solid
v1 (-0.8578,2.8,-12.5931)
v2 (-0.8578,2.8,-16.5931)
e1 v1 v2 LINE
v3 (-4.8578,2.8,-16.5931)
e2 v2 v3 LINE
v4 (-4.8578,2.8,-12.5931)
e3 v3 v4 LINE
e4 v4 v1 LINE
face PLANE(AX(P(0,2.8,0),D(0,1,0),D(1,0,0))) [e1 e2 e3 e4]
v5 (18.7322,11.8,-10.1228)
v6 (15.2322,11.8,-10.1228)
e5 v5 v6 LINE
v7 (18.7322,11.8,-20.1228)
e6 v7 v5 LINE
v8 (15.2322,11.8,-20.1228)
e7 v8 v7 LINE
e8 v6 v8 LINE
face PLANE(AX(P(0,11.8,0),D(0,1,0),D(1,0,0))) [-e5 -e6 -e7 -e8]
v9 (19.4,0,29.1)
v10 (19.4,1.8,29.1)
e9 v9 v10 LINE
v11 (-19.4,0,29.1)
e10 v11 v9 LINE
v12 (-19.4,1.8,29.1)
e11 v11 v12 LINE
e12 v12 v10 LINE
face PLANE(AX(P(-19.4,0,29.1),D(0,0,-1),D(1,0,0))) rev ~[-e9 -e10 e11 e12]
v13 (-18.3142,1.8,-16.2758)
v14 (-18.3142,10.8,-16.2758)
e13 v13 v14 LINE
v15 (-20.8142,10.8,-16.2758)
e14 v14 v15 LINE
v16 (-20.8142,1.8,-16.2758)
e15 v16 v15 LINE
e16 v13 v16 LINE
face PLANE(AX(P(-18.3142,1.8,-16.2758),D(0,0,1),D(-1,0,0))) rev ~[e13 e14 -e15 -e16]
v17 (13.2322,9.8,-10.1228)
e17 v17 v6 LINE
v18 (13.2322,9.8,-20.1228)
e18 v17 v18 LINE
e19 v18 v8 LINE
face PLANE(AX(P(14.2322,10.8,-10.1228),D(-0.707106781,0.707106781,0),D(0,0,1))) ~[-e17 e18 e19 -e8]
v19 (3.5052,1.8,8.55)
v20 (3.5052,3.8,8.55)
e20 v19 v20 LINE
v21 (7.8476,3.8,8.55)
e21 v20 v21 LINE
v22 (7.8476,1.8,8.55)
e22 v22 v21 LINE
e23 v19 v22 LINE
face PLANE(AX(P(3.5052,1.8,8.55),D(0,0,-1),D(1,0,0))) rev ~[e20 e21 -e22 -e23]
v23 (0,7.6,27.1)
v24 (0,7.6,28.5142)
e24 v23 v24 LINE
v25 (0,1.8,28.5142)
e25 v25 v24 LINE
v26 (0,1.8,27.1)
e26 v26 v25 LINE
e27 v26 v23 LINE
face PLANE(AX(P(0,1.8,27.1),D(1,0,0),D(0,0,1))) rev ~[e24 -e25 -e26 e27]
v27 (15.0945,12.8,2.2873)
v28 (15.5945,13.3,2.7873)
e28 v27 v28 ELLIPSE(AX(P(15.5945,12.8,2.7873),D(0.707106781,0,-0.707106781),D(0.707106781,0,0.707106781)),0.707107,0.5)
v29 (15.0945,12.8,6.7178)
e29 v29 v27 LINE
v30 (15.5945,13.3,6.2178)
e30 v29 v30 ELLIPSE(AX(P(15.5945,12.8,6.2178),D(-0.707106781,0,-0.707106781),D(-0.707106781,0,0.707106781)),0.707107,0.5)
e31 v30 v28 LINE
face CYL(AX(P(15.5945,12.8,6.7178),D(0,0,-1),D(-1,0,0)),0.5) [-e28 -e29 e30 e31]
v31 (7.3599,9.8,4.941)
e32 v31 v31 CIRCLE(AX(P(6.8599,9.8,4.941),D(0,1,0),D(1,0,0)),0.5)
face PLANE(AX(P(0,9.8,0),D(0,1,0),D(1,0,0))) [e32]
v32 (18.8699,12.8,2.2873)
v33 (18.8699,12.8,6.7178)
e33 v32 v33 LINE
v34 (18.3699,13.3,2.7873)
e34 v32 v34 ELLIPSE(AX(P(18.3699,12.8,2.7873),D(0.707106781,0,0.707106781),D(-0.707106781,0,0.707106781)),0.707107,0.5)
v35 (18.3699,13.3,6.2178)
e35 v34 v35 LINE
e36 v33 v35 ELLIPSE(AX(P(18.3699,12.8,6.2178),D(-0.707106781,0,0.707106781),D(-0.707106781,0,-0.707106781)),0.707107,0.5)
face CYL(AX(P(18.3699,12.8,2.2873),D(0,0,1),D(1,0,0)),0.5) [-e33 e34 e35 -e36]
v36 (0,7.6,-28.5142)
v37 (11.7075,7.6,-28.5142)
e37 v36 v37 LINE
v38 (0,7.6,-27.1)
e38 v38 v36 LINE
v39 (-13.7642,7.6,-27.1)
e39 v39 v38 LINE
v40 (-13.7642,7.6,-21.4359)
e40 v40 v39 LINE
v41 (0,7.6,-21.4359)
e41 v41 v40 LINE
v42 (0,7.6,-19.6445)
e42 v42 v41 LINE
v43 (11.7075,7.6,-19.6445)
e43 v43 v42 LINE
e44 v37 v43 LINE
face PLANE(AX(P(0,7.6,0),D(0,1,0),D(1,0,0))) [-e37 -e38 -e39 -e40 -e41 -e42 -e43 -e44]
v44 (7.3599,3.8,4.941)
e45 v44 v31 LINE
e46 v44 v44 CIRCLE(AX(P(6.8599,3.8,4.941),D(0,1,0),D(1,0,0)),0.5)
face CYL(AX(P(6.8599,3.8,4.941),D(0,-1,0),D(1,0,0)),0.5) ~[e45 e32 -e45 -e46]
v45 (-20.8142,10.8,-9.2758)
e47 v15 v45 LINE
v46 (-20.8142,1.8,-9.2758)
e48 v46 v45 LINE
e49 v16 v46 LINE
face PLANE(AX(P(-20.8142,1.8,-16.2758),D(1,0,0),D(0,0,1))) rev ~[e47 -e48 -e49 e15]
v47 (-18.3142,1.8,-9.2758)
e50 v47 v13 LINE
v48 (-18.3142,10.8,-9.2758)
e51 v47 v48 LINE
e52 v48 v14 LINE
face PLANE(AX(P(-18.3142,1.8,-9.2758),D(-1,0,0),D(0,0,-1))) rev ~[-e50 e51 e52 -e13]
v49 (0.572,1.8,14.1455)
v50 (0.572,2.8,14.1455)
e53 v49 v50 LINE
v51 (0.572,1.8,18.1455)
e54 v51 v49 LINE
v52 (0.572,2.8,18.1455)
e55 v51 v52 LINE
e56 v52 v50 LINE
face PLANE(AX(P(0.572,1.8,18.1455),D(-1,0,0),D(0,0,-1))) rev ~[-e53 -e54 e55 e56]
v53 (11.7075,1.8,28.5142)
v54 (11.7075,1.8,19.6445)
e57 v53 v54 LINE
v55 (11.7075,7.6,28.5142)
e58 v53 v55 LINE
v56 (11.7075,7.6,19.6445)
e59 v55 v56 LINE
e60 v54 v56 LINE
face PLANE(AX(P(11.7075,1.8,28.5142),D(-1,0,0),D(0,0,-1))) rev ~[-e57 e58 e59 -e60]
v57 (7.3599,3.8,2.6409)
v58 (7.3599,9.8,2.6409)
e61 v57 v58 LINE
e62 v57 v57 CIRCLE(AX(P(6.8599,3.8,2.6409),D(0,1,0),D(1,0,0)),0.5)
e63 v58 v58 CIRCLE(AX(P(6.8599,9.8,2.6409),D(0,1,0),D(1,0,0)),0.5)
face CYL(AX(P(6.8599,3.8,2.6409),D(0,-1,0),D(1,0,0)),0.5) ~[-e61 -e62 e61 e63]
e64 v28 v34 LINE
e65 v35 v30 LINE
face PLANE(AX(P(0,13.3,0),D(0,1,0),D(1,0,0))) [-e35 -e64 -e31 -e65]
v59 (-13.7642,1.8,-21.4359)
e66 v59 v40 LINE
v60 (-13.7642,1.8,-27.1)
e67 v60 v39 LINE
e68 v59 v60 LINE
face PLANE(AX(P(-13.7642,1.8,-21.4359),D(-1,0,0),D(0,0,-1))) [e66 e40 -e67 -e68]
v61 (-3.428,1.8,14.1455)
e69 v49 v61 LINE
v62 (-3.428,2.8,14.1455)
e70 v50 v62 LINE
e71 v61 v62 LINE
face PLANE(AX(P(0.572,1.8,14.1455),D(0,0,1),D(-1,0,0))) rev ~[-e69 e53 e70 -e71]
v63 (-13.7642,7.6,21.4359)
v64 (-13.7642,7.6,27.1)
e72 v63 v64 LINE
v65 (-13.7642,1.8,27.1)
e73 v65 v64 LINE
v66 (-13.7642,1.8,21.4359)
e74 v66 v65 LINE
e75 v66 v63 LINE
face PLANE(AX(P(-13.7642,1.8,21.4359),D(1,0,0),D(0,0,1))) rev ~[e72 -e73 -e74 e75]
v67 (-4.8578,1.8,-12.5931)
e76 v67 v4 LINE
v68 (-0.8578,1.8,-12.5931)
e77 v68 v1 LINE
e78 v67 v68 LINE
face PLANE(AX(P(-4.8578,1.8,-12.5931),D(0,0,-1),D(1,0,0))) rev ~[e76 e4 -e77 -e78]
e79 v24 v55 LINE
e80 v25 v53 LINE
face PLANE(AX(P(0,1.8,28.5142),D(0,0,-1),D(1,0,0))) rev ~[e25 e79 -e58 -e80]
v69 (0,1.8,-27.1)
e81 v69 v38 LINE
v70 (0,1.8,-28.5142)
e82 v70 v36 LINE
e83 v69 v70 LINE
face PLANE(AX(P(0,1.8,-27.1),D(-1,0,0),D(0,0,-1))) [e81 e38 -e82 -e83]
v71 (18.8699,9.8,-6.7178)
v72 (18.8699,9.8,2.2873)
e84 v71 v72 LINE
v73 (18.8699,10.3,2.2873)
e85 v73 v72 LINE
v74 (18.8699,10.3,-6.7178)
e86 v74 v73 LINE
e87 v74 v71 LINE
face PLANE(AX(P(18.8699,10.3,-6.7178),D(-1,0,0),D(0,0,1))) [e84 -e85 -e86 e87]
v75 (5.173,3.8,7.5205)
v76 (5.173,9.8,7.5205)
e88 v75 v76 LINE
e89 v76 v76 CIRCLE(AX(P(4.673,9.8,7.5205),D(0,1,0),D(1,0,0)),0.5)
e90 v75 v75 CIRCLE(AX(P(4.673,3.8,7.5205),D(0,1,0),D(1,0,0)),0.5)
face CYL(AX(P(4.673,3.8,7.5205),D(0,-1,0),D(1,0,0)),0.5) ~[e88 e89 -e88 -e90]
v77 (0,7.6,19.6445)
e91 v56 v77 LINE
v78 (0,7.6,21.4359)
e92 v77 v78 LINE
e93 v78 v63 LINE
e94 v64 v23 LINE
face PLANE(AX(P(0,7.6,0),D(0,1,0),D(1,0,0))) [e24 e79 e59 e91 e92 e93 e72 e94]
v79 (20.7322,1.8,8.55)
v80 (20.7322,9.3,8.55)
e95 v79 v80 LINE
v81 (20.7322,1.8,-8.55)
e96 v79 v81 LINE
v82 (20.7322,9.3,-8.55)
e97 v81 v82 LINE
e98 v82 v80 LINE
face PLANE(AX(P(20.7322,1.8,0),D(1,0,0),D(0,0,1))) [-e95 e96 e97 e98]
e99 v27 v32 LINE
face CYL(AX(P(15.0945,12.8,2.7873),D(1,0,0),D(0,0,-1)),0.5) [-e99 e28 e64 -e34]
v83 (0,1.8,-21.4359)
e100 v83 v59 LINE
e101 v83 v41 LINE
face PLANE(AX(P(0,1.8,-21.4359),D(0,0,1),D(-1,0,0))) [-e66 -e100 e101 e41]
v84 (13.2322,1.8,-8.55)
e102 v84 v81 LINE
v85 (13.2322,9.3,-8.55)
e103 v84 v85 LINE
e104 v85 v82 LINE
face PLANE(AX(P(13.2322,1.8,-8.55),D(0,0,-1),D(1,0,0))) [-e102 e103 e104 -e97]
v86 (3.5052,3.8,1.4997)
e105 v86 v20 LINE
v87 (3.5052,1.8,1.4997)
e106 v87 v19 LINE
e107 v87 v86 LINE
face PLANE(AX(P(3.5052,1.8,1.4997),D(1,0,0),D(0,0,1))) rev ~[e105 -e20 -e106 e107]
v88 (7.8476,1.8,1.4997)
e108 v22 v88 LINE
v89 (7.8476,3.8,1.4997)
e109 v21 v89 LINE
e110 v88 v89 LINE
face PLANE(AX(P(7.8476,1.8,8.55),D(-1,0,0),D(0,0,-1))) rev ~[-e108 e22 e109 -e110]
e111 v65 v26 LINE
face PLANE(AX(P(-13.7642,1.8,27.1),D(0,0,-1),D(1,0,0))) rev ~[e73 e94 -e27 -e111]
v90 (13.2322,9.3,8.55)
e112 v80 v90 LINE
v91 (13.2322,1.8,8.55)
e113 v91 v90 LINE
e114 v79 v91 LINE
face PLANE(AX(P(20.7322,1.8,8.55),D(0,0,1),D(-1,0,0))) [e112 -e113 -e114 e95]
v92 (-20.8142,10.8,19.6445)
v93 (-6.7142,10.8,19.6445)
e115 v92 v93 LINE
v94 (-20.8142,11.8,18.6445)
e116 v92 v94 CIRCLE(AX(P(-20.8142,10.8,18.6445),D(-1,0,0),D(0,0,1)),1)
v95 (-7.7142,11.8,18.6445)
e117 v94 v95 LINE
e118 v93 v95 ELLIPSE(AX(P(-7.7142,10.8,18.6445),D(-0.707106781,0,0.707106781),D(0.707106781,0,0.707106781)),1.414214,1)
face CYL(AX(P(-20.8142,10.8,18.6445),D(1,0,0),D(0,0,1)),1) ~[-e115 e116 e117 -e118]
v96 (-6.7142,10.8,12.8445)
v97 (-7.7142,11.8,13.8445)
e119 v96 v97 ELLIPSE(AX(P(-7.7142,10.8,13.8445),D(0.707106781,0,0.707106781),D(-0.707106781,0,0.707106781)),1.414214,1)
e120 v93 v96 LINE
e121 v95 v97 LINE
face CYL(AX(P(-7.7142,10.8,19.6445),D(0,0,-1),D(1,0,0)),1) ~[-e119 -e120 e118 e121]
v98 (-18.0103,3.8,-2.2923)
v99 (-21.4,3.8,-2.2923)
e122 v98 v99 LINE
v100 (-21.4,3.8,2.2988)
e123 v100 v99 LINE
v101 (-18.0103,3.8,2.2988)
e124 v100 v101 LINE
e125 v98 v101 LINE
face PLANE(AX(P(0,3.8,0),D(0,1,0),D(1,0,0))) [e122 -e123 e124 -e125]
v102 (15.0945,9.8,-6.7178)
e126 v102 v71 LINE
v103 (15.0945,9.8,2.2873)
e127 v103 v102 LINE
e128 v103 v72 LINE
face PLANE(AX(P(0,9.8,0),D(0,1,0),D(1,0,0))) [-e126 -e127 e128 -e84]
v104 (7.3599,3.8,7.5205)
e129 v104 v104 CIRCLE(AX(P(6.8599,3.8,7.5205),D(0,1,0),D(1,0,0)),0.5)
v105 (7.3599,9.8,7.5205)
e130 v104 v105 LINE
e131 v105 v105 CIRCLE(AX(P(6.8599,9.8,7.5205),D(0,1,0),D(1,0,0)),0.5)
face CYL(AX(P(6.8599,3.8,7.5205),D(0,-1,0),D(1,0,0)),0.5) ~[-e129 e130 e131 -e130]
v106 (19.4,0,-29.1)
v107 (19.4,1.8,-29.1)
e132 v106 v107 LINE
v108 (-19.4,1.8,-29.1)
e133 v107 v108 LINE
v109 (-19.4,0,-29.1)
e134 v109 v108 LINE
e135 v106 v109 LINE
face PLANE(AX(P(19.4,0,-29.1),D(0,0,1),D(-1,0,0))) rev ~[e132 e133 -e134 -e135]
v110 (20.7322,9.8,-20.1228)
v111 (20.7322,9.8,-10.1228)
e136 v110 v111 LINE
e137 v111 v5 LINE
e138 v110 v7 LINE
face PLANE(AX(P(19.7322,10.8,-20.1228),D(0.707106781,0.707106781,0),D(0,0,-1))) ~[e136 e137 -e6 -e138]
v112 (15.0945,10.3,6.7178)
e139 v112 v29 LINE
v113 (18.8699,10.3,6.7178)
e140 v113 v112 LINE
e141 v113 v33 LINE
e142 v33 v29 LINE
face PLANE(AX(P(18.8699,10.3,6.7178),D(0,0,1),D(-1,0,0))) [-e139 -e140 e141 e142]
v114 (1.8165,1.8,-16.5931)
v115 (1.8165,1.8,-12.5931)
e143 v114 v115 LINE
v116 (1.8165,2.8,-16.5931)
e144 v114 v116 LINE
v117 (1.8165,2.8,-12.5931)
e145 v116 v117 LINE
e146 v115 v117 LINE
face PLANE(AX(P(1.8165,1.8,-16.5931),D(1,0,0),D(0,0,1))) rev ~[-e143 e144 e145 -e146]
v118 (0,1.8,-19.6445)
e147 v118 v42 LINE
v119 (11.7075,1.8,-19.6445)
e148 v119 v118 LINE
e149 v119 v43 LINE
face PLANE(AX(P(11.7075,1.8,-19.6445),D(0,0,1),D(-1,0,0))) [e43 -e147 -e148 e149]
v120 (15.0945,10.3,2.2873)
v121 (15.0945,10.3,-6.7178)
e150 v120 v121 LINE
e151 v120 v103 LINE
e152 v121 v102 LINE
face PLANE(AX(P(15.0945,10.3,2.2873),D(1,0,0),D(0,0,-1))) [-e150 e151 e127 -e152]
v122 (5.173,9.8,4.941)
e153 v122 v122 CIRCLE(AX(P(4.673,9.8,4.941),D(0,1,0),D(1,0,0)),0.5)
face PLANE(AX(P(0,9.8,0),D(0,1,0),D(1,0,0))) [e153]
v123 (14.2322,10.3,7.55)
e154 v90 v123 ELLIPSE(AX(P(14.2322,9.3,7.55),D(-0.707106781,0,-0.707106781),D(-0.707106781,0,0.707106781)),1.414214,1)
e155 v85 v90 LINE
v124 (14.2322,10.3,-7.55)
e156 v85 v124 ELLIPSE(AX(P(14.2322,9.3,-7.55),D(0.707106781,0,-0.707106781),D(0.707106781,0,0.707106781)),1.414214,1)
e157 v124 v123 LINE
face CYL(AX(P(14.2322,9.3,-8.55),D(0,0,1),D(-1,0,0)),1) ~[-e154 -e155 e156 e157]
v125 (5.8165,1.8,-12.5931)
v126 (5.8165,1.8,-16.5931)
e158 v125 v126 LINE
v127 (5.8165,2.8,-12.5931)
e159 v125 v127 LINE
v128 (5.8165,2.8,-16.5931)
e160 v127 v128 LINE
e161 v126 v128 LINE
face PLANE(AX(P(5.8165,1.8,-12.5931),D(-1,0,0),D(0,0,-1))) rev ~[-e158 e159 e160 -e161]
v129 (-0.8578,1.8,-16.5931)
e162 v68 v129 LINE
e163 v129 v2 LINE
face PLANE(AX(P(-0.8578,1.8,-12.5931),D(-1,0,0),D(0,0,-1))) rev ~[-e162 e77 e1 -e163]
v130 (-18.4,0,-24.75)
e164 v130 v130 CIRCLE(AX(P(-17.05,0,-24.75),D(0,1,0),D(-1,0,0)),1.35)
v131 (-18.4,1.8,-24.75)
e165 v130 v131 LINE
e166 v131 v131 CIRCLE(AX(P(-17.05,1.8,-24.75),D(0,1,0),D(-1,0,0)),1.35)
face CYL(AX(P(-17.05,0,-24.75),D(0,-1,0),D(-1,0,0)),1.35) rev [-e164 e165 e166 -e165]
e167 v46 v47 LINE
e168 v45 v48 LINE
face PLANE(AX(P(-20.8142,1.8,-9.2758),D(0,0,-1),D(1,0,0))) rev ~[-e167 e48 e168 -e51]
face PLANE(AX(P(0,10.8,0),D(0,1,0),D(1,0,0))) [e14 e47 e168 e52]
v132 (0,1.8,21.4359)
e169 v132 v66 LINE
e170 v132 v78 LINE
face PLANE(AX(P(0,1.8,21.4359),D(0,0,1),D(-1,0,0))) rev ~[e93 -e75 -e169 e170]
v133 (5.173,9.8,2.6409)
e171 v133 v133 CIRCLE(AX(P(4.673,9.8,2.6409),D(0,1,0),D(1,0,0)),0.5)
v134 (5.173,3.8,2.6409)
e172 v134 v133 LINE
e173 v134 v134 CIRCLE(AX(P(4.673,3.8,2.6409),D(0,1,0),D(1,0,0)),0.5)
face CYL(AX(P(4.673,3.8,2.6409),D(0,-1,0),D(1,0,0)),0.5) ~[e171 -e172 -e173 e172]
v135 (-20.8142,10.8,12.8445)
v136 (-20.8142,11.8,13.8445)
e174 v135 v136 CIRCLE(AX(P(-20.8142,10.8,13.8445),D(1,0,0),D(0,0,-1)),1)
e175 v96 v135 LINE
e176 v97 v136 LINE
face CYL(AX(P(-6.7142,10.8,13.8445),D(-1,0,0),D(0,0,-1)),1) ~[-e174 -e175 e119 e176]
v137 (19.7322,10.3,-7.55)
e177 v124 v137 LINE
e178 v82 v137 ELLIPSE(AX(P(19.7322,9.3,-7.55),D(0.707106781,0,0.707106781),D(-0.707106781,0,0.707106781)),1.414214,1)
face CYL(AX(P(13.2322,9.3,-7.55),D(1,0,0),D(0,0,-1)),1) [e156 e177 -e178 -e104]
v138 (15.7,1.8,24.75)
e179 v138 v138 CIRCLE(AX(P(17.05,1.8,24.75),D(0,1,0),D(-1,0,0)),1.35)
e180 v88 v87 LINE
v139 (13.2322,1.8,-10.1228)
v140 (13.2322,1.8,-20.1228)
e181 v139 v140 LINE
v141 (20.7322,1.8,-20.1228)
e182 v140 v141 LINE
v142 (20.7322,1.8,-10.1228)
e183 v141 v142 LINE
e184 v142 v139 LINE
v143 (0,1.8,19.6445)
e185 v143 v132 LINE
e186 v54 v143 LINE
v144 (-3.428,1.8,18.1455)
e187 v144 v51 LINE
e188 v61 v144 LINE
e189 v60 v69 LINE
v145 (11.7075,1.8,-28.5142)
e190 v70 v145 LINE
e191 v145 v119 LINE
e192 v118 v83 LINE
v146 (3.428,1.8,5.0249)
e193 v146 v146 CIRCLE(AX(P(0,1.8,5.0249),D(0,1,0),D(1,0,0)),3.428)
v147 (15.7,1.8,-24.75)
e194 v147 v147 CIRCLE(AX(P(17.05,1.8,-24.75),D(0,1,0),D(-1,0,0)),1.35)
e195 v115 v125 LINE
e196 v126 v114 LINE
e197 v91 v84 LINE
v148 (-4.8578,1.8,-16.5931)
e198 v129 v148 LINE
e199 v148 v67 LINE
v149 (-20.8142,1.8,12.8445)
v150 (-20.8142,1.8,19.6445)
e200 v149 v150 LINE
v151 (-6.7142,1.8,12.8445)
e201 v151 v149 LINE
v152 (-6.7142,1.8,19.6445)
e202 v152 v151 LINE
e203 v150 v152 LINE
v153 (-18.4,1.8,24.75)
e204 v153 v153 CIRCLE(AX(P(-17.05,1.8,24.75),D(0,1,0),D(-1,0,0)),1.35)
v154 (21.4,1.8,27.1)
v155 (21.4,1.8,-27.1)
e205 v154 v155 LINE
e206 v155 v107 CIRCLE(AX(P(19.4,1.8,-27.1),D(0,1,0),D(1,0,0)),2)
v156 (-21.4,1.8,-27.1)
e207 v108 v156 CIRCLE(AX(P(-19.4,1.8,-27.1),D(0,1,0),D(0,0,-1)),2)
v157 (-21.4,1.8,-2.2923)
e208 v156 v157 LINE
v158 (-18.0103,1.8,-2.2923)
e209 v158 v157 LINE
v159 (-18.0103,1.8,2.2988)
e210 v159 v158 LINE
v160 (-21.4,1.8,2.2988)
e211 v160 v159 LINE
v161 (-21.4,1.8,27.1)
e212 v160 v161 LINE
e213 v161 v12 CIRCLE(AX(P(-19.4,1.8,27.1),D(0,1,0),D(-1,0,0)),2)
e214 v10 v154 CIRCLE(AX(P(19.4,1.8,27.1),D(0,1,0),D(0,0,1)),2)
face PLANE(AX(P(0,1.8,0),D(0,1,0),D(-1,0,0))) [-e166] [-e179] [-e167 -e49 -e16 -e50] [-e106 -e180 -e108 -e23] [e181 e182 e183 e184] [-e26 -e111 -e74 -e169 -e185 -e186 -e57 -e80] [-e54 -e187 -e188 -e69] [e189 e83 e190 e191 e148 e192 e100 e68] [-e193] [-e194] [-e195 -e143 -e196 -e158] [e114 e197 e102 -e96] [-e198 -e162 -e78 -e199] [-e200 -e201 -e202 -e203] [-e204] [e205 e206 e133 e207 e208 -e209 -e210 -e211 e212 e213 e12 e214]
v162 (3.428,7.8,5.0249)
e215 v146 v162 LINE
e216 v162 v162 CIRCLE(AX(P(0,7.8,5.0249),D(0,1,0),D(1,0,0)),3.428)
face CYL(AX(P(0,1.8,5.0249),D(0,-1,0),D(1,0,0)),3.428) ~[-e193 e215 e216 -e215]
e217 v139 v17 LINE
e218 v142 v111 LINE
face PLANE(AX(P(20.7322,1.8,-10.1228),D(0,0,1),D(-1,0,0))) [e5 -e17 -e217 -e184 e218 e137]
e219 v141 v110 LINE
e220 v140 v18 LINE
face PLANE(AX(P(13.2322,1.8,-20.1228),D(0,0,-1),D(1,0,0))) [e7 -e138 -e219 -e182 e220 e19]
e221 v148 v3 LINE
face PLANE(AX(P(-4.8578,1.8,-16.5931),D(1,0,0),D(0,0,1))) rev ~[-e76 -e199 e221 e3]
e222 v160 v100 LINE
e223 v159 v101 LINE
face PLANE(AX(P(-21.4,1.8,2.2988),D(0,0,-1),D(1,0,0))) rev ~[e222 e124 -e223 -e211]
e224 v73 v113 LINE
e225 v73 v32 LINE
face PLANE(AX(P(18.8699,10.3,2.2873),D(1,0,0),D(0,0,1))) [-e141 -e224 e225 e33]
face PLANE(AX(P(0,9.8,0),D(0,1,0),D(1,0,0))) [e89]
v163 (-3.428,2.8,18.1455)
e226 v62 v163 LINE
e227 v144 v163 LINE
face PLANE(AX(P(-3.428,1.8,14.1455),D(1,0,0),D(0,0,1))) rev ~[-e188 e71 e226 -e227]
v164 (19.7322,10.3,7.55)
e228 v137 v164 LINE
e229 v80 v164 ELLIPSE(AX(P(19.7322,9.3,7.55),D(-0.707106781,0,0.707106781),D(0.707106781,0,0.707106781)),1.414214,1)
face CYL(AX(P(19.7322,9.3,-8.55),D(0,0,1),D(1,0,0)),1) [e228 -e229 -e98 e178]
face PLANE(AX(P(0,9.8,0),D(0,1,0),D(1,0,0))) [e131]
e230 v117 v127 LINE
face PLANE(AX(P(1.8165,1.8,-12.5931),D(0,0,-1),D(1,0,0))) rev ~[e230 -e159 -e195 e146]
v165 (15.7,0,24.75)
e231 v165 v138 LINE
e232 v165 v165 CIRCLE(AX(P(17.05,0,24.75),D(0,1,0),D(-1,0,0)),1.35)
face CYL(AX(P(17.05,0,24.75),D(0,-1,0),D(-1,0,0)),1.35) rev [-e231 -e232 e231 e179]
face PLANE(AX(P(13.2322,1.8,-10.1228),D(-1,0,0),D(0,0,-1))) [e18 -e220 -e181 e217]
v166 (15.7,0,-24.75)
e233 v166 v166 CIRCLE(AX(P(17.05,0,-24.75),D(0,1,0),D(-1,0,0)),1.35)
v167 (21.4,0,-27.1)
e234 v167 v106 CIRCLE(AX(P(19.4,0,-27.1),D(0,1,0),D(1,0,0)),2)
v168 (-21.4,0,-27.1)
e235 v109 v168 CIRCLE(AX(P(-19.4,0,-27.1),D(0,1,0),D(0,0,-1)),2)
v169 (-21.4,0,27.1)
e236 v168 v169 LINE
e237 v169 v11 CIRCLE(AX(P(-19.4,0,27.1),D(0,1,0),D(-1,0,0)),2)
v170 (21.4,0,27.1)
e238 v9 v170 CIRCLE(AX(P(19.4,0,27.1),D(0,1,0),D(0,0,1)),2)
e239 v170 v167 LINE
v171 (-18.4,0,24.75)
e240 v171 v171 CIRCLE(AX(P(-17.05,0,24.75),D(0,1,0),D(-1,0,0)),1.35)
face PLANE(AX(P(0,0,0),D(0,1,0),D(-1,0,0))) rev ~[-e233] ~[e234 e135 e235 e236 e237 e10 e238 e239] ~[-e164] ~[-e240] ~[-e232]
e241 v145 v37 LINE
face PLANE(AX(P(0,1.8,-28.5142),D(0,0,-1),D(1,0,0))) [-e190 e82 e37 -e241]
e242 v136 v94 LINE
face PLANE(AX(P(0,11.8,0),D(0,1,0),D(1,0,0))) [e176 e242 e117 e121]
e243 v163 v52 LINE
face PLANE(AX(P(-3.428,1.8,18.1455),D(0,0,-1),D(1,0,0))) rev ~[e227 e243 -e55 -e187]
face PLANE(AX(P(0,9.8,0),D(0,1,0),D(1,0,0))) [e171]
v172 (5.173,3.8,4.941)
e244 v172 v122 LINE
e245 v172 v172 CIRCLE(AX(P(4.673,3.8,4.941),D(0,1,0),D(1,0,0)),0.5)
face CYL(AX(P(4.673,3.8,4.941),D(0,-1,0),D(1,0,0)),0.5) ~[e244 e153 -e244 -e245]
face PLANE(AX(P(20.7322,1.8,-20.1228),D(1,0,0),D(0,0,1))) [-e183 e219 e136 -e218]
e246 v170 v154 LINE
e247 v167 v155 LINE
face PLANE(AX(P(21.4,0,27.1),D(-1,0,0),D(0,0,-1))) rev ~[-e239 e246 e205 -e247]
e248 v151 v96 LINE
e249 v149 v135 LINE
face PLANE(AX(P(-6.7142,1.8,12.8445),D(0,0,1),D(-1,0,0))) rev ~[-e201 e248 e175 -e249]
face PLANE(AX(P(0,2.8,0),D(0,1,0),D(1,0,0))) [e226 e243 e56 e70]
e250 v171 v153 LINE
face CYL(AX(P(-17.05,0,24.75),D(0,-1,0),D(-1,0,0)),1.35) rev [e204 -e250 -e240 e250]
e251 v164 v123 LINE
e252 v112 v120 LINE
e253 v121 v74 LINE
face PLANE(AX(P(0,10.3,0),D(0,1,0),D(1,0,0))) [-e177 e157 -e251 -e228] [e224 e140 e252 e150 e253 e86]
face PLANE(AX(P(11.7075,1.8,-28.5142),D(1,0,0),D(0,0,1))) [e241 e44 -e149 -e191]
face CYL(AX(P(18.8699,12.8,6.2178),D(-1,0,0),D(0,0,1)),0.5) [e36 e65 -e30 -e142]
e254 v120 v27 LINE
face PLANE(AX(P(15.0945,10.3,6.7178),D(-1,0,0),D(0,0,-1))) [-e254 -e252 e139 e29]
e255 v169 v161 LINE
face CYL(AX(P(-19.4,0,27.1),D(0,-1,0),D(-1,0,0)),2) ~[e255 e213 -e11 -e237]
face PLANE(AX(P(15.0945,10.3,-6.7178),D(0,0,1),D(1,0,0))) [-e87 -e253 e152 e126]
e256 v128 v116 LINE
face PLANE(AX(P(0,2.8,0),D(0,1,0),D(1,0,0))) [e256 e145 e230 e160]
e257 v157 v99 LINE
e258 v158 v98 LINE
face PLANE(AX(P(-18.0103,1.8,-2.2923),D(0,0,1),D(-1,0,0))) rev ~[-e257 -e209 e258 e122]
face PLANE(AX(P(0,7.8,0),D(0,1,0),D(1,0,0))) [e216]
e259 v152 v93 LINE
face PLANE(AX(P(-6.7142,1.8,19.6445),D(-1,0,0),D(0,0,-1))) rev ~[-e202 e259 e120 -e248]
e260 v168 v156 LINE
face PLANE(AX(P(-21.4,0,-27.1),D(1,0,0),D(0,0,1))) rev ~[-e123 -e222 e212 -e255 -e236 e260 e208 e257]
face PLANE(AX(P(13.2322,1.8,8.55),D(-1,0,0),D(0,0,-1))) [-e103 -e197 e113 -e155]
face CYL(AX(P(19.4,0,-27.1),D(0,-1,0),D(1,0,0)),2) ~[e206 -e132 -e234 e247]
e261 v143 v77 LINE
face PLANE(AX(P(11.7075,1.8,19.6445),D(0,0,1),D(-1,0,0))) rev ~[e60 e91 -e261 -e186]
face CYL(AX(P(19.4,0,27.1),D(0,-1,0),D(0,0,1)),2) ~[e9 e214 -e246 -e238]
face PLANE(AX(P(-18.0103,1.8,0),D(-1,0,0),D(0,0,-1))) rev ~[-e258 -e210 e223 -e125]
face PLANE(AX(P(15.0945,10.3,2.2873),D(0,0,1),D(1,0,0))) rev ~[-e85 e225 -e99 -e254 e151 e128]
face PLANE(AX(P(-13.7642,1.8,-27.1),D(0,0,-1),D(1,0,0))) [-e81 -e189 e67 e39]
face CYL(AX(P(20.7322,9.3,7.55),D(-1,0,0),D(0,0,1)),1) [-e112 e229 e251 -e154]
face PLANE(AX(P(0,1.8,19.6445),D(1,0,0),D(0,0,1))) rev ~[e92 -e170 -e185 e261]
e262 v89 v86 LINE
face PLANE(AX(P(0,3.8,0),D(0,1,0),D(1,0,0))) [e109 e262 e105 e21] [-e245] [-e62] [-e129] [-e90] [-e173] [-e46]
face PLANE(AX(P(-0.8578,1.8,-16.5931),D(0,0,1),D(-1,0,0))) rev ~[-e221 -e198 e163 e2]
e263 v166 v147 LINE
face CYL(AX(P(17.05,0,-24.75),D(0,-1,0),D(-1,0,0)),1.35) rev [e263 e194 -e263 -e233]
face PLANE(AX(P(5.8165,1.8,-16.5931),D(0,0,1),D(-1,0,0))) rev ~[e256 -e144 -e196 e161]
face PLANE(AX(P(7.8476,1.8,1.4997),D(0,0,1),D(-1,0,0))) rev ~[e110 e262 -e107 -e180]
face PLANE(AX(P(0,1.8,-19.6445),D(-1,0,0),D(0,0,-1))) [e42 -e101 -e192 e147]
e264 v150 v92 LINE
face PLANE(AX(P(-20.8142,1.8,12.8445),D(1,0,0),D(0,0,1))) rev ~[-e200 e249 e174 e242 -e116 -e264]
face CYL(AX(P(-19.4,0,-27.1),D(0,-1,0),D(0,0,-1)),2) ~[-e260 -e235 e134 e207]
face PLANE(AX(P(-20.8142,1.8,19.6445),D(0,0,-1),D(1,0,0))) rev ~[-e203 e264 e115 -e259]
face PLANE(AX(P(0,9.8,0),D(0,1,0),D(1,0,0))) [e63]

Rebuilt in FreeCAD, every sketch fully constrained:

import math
import FreeCAD as App
import Part
import Sketcher


def edges_at(feature, points):
    """Names of the edges that pass closest to the given points."""
    edges = feature.Shape.Edges
    near = lambda p: min(range(len(edges)), key=lambda i: edges[i].distToShape(Part.Vertex(*p))[0])
    return sorted({f"Edge{near(p) + 1}" for p in points})

doc = App.newDocument("Part")
body = doc.addObject("PartDesign::Body", "Body")

sketch1 = doc.addObject("Sketcher::SketchObject", "Sketch")
body.addObject(sketch1)
sketch1.AttachmentSupport = (doc.XZ_Plane, [""])
sketch1.MapMode = "FlatFace"
sketch1.addGeometry([
    Part.ArcOfCircle(Part.Circle(App.Vector(19.4, -27.1, 0), App.Vector(0, 0, 1), 2), math.radians(-90), math.radians(0)),
    Part.LineSegment(App.Vector(19.4, -29.1, 0), App.Vector(-19.4, -29.1, 0)),
    Part.ArcOfCircle(Part.Circle(App.Vector(-19.4, -27.1, 0), App.Vector(0, 0, 1), 2), math.radians(180), math.radians(270)),
    Part.LineSegment(App.Vector(-21.4, -27.1, 0), App.Vector(-21.4, 27.1, 0)),
    Part.ArcOfCircle(Part.Circle(App.Vector(-19.4, 27.1, 0), App.Vector(0, 0, 1), 2), math.radians(90), math.radians(180)),
    Part.LineSegment(App.Vector(-19.4, 29.1, 0), App.Vector(19.4, 29.1, 0)),
    Part.ArcOfCircle(Part.Circle(App.Vector(19.4, 27.1, 0), App.Vector(0, 0, 1), 2), math.radians(0), math.radians(90)),
    Part.LineSegment(App.Vector(21.4, 27.1, 0), App.Vector(21.4, -27.1, 0)),
    Part.Circle(App.Vector(17.05, -24.75, 0), App.Vector(0, 0, 1), 1.35),
    Part.Circle(App.Vector(-17.05, -24.75, 0), App.Vector(0, 0, 1), 1.35),
    Part.Circle(App.Vector(17.05, 24.75, 0), App.Vector(0, 0, 1), 1.35),
    Part.Circle(App.Vector(-17.05, 24.75, 0), App.Vector(0, 0, 1), 1.35),
], False)
sketch1.addConstraint([
    Sketcher.Constraint("Tangent", 0, 1, 1, 1),
    Sketcher.Constraint("Tangent", 1, 2, 2, 2),
    Sketcher.Constraint("Tangent", 2, 1, 3, 1),
    Sketcher.Constraint("Tangent", 3, 2, 4, 2),
    Sketcher.Constraint("Tangent", 4, 1, 5, 1),
    Sketcher.Constraint("Tangent", 5, 2, 6, 2),
    Sketcher.Constraint("Tangent", 6, 1, 7, 1),
    Sketcher.Constraint("Tangent", 7, 2, 0, 2),
    Sketcher.Constraint("Horizontal", 1),
    Sketcher.Constraint("Vertical", 3),
    Sketcher.Constraint("Horizontal", 5),
    Sketcher.Constraint("Vertical", 7),
    Sketcher.Constraint("Equal", 0, 2),
    Sketcher.Constraint("Equal", 2, 4),
    Sketcher.Constraint("Equal", 4, 6),
    Sketcher.Constraint("Equal", 8, 9),
    Sketcher.Constraint("Equal", 9, 10),
    Sketcher.Constraint("Equal", 10, 11),
    Sketcher.Constraint("Symmetric", 0, 3, 4, 3, -1, 1),
    Sketcher.Constraint("Symmetric", 9, 3, 10, 3, -1, 1),
    Sketcher.Constraint("Symmetric", 8, 3, 11, 3, -1, 1),
    Sketcher.Constraint("Symmetric", 8, 3, 9, 3, -2),
    Sketcher.Constraint("Radius", 0, 2.0),
    Sketcher.Constraint("Diameter", 8, 2.7),
    Sketcher.Constraint("DistanceX", 1, 2, 1, 1, 38.8),
    Sketcher.Constraint("DistanceY", 3, 1, 3, 2, 54.2),
    Sketcher.Constraint("DistanceX", 9, 3, 8, 3, 34.1),
    Sketcher.Constraint("DistanceY", 8, 3, 10, 3, 49.5),
])
pad1 = doc.addObject("PartDesign::Pad", "Pad")
body.addObject(pad1)
pad1.Profile = sketch1
pad1.Length = 1.8
pad1.Reversed = True

sketch2 = doc.addObject("Sketcher::SketchObject", "Sketch001")
body.addObject(sketch2)
sketch2.AttachmentSupport = (doc.XZ_Plane, [""])
sketch2.MapMode = "FlatFace"
sketch2.AttachmentOffset = App.Placement(App.Vector(0, 0, -1.8), App.Rotation())
sketch2.addGeometry([
    Part.LineSegment(App.Vector(20.7322, 8.55, 0), App.Vector(20.7322, -8.55, 0)),
    Part.LineSegment(App.Vector(20.7322, -8.55, 0), App.Vector(13.2322, -8.55, 0)),
    Part.LineSegment(App.Vector(13.2322, -8.55, 0), App.Vector(13.2322, 8.55, 0)),
    Part.LineSegment(App.Vector(13.2322, 8.55, 0), App.Vector(20.7322, 8.55, 0)),
], False)
sketch2.addConstraint([
    Sketcher.Constraint("Coincident", 0, 2, 1, 1),
    Sketcher.Constraint("Coincident", 1, 2, 2, 1),
    Sketcher.Constraint("Coincident", 2, 2, 3, 1),
    Sketcher.Constraint("Coincident", 3, 2, 0, 1),
    Sketcher.Constraint("Vertical", 0),
    Sketcher.Constraint("Horizontal", 1),
    Sketcher.Constraint("Vertical", 2),
    Sketcher.Constraint("Horizontal", 3),
    Sketcher.Constraint("DistanceX", 1, 2, 1, 1, 7.5),
    Sketcher.Constraint("DistanceY", 0, 2, 0, 1, 17.1),
    Sketcher.Constraint("DistanceY", 0, 2, -1, 1, 8.55),
    Sketcher.Constraint("DistanceX", -1, 1, 0, 2, 20.7322),
])
pad2 = doc.addObject("PartDesign::Pad", "Pad001")
body.addObject(pad2)
pad2.Profile = sketch2
pad2.Length = 8.5
pad2.Reversed = True

sketch3 = doc.addObject("Sketcher::SketchObject", "Sketch002")
body.addObject(sketch3)
sketch3.AttachmentSupport = (doc.XZ_Plane, [""])
sketch3.MapMode = "FlatFace"
sketch3.AttachmentOffset = App.Placement(App.Vector(0, 0, -1.8), App.Rotation())
sketch3.addGeometry([
    Part.LineSegment(App.Vector(13.2322, -10.1228, 0), App.Vector(20.7322, -10.1228, 0)),
    Part.LineSegment(App.Vector(20.7322, -10.1228, 0), App.Vector(20.7322, -20.1228, 0)),
    Part.LineSegment(App.Vector(20.7322, -20.1228, 0), App.Vector(13.2322, -20.1228, 0)),
    Part.LineSegment(App.Vector(13.2322, -20.1228, 0), App.Vector(13.2322, -10.1228, 0)),
    Part.LineSegment(App.Vector(-20.8142, 12.8445, 0), App.Vector(-20.8142, 19.6445, 0)),
    Part.LineSegment(App.Vector(-20.8142, 19.6445, 0), App.Vector(-6.7142, 19.6445, 0)),
    Part.LineSegment(App.Vector(-6.7142, 19.6445, 0), App.Vector(-6.7142, 12.8445, 0)),
    Part.LineSegment(App.Vector(-6.7142, 12.8445, 0), App.Vector(-20.8142, 12.8445, 0)),
], False)
sketch3.addConstraint([
    Sketcher.Constraint("Coincident", 0, 2, 1, 1),
    Sketcher.Constraint("Coincident", 1, 2, 2, 1),
    Sketcher.Constraint("Coincident", 2, 2, 3, 1),
    Sketcher.Constraint("Coincident", 3, 2, 0, 1),
    Sketcher.Constraint("Coincident", 4, 2, 5, 1),
    Sketcher.Constraint("Coincident", 5, 2, 6, 1),
    Sketcher.Constraint("Coincident", 6, 2, 7, 1),
    Sketcher.Constraint("Coincident", 7, 2, 4, 1),
    Sketcher.Constraint("Horizontal", 0),
    Sketcher.Constraint("Vertical", 1),
    Sketcher.Constraint("Horizontal", 2),
    Sketcher.Constraint("Vertical", 3),
    Sketcher.Constraint("Vertical", 4),
    Sketcher.Constraint("Horizontal", 5),
    Sketcher.Constraint("Vertical", 6),
    Sketcher.Constraint("Horizontal", 7),
    Sketcher.Constraint("DistanceY", 1, 2, 1, 1, 10.0),
    Sketcher.Constraint("DistanceX", 0, 1, 0, 2, 7.5),
    Sketcher.Constraint("DistanceX", 5, 1, 5, 2, 14.1),
    Sketcher.Constraint("DistanceY", 4, 1, 4, 2, 6.8),
    Sketcher.Constraint("DistanceX", -1, 1, 0, 2, 20.7322),
    Sketcher.Constraint("DistanceY", 0, 2, -1, 1, 10.1228),
    Sketcher.Constraint("DistanceX", 4, 2, -1, 1, 20.8142),
    Sketcher.Constraint("DistanceY", -1, 1, 4, 2, 19.6445),
])
pad3 = doc.addObject("PartDesign::Pad", "Pad002")
body.addObject(pad3)
pad3.Profile = sketch3
pad3.Length = 10
pad3.Reversed = True

sketch4 = doc.addObject("Sketcher::SketchObject", "Sketch003")
body.addObject(sketch4)
sketch4.AttachmentSupport = (doc.XZ_Plane, [""])
sketch4.MapMode = "FlatFace"
sketch4.AttachmentOffset = App.Placement(App.Vector(0, 0, -1.8), App.Rotation())
sketch4.addGeometry([
    Part.LineSegment(App.Vector(-13.7642, 21.4359, 0), App.Vector(-13.7642, 27.1, 0)),
    Part.LineSegment(App.Vector(-13.7642, 27.1, 0), App.Vector(0, 27.1, 0)),
    Part.LineSegment(App.Vector(0, 27.1, 0), App.Vector(0, 28.5142, 0)),
    Part.LineSegment(App.Vector(0, 28.5142, 0), App.Vector(11.7075, 28.5142, 0)),
    Part.LineSegment(App.Vector(11.7075, 28.5142, 0), App.Vector(11.7075, 19.6445, 0)),
    Part.LineSegment(App.Vector(11.7075, 19.6445, 0), App.Vector(0, 19.6445, 0)),
    Part.LineSegment(App.Vector(0, 19.6445, 0), App.Vector(0, 21.4359, 0)),
    Part.LineSegment(App.Vector(0, 21.4359, 0), App.Vector(-13.7642, 21.4359, 0)),
    Part.LineSegment(App.Vector(0, -27.1, 0), App.Vector(-13.7642, -27.1, 0)),
    Part.LineSegment(App.Vector(-13.7642, -27.1, 0), App.Vector(-13.7642, -21.4359, 0)),
    Part.LineSegment(App.Vector(-13.7642, -21.4359, 0), App.Vector(0, -21.4359, 0)),
    Part.LineSegment(App.Vector(0, -21.4359, 0), App.Vector(0, -19.6445, 0)),
    Part.LineSegment(App.Vector(0, -19.6445, 0), App.Vector(11.7075, -19.6445, 0)),
    Part.LineSegment(App.Vector(11.7075, -19.6445, 0), App.Vector(11.7075, -28.5142, 0)),
    Part.LineSegment(App.Vector(11.7075, -28.5142, 0), App.Vector(0, -28.5142, 0)),
    Part.LineSegment(App.Vector(0, -28.5142, 0), App.Vector(0, -27.1, 0)),
], False)
sketch4.addConstraint([
    Sketcher.Constraint("Coincident", 0, 2, 1, 1),
    Sketcher.Constraint("Coincident", 1, 2, 2, 1),
    Sketcher.Constraint("Coincident", 2, 2, 3, 1),
    Sketcher.Constraint("Coincident", 3, 2, 4, 1),
    Sketcher.Constraint("Coincident", 4, 2, 5, 1),
    Sketcher.Constraint("Coincident", 5, 2, 6, 1),
    Sketcher.Constraint("Coincident", 6, 2, 7, 1),
    Sketcher.Constraint("Coincident", 7, 2, 0, 1),
    Sketcher.Constraint("Coincident", 8, 2, 9, 1),
    Sketcher.Constraint("Coincident", 9, 2, 10, 1),
    Sketcher.Constraint("Coincident", 10, 2, 11, 1),
    Sketcher.Constraint("Coincident", 11, 2, 12, 1),
    Sketcher.Constraint("Coincident", 12, 2, 13, 1),
    Sketcher.Constraint("Coincident", 13, 2, 14, 1),
    Sketcher.Constraint("Coincident", 14, 2, 15, 1),
    Sketcher.Constraint("Coincident", 15, 2, 8, 1),
    Sketcher.Constraint("Vertical", 0),
    Sketcher.Constraint("Horizontal", 1),
    Sketcher.Constraint("Vertical", 2),
    Sketcher.Constraint("Horizontal", 3),
    Sketcher.Constraint("Vertical", 4),
    Sketcher.Constraint("Horizontal", 5),
    Sketcher.Constraint("Vertical", 6),
    Sketcher.Constraint("Horizontal", 7),
    Sketcher.Constraint("Horizontal", 8),
    Sketcher.Constraint("Vertical", 9),
    Sketcher.Constraint("Horizontal", 10),
    Sketcher.Constraint("Vertical", 11),
    Sketcher.Constraint("Horizontal", 12),
    Sketcher.Constraint("Vertical", 13),
    Sketcher.Constraint("Horizontal", 14),
    Sketcher.Constraint("Vertical", 15),
    Sketcher.Constraint("Symmetric", 6, 2, 10, 2, -1, 1),
    Sketcher.Constraint("Symmetric", 2, 2, 14, 2, -1, 1),
    Sketcher.Constraint("Symmetric", 0, 2, 8, 2, -1),
    Sketcher.Constraint("Symmetric", 5, 2, 11, 2, -1),
    Sketcher.Constraint("PointOnObject", 1, 2, -2),
    Sketcher.Constraint("Vertical", 4, 2, 12, 2),
    Sketcher.Constraint("DistanceY", -1, 1, 0, 2, 27.1),
    Sketcher.Constraint("DistanceY", 0, 1, 0, 2, 5.664),
    Sketcher.Constraint("DistanceX", 1, 1, 1, 2, 13.7642),
    Sketcher.Constraint("DistanceX", 3, 1, 3, 2, 11.7075),
    Sketcher.Constraint("DistanceY", 2, 1, 2, 2, 1.4142),
    Sketcher.Constraint("DistanceY", 4, 2, 4, 1, 8.8697),
])
pad4 = doc.addObject("PartDesign::Pad", "Pad003")
body.addObject(pad4)
pad4.Profile = sketch4
pad4.Length = 5.8
pad4.Reversed = True

sketch5 = doc.addObject("Sketcher::SketchObject", "Sketch004")
body.addObject(sketch5)
sketch5.AttachmentSupport = (doc.XZ_Plane, [""])
sketch5.MapMode = "FlatFace"
sketch5.AttachmentOffset = App.Placement(App.Vector(0, 0, -1.8), App.Rotation())
sketch5.addGeometry([
    Part.LineSegment(App.Vector(-3.428, 14.1455, 0), App.Vector(-3.428, 18.1455, 0)),
    Part.LineSegment(App.Vector(-3.428, 18.1455, 0), App.Vector(0.572, 18.1455, 0)),
    Part.LineSegment(App.Vector(0.572, 18.1455, 0), App.Vector(0.572, 14.1455, 0)),
    Part.LineSegment(App.Vector(0.572, 14.1455, 0), App.Vector(-3.428, 14.1455, 0)),
    Part.LineSegment(App.Vector(-4.8578, -16.5931, 0), App.Vector(-4.8578, -12.5931, 0)),
    Part.LineSegment(App.Vector(-4.8578, -12.5931, 0), App.Vector(-0.8578, -12.5931, 0)),
    Part.LineSegment(App.Vector(-0.8578, -12.5931, 0), App.Vector(-0.8578, -16.5931, 0)),
    Part.LineSegment(App.Vector(-0.8578, -16.5931, 0), App.Vector(-4.8578, -16.5931, 0)),
    Part.LineSegment(App.Vector(1.8165, -16.5931, 0), App.Vector(1.8165, -12.5931, 0)),
    Part.LineSegment(App.Vector(1.8165, -12.5931, 0), App.Vector(5.8165, -12.5931, 0)),
    Part.LineSegment(App.Vector(5.8165, -12.5931, 0), App.Vector(5.8165, -16.5931, 0)),
    Part.LineSegment(App.Vector(5.8165, -16.5931, 0), App.Vector(1.8165, -16.5931, 0)),
], False)
sketch5.addConstraint([
    Sketcher.Constraint("Coincident", 0, 2, 1, 1),
    Sketcher.Constraint("Coincident", 1, 2, 2, 1),
    Sketcher.Constraint("Coincident", 2, 2, 3, 1),
    Sketcher.Constraint("Coincident", 3, 2, 0, 1),
    Sketcher.Constraint("Coincident", 4, 2, 5, 1),
    Sketcher.Constraint("Coincident", 5, 2, 6, 1),
    Sketcher.Constraint("Coincident", 6, 2, 7, 1),
    Sketcher.Constraint("Coincident", 7, 2, 4, 1),
    Sketcher.Constraint("Coincident", 8, 2, 9, 1),
    Sketcher.Constraint("Coincident", 9, 2, 10, 1),
    Sketcher.Constraint("Coincident", 10, 2, 11, 1),
    Sketcher.Constraint("Coincident", 11, 2, 8, 1),
    Sketcher.Constraint("Vertical", 0),
    Sketcher.Constraint("Horizontal", 1),
    Sketcher.Constraint("Vertical", 2),
    Sketcher.Constraint("Horizontal", 3),
    Sketcher.Constraint("Vertical", 4),
    Sketcher.Constraint("Horizontal", 5),
    Sketcher.Constraint("Vertical", 6),
    Sketcher.Constraint("Horizontal", 7),
    Sketcher.Constraint("Vertical", 8),
    Sketcher.Constraint("Horizontal", 9),
    Sketcher.Constraint("Vertical", 10),
    Sketcher.Constraint("Horizontal", 11),
    Sketcher.Constraint("Horizontal", 5, 2, 8, 2),
    Sketcher.Constraint("Horizontal", 7, 2, 10, 2),
    Sketcher.Constraint("Equal", 3, 5),
    Sketcher.Constraint("Equal", 7, 9),
    Sketcher.Constraint("Equal", 11, 0),
    Sketcher.Constraint("Equal", 2, 4),
    Sketcher.Constraint("DistanceX", 1, 1, 1, 2, 4.0),
    Sketcher.Constraint("DistanceX", 0, 2, -1, 1, 3.428),
    Sketcher.Constraint("DistanceY", 4, 2, -1, 1, 12.593),
    Sketcher.Constraint("DistanceY", -1, 1, 0, 2, 18.1455),
    Sketcher.Constraint("DistanceX", 4, 2, -1, 1, 4.8578),
    Sketcher.Constraint("DistanceX", -1, 1, 8, 2, 1.8165),
])
pad5 = doc.addObject("PartDesign::Pad", "Pad004")
body.addObject(pad5)
pad5.Profile = sketch5
pad5.Length = 1
pad5.Reversed = True

sketch6 = doc.addObject("Sketcher::SketchObject", "Sketch005")
body.addObject(sketch6)
sketch6.AttachmentSupport = (doc.XZ_Plane, [""])
sketch6.MapMode = "FlatFace"
sketch6.AttachmentOffset = App.Placement(App.Vector(0, 0, -1.8), App.Rotation())
sketch6.addGeometry([
    Part.LineSegment(App.Vector(-18.0103, -2.2923, 0), App.Vector(-21.4, -2.2923, 0)),
    Part.LineSegment(App.Vector(-21.4, -2.2923, 0), App.Vector(-21.4, 2.2988, 0)),
    Part.LineSegment(App.Vector(-21.4, 2.2988, 0), App.Vector(-18.0103, 2.2988, 0)),
    Part.LineSegment(App.Vector(-18.0103, 2.2988, 0), App.Vector(-18.0103, -2.2923, 0)),
    Part.LineSegment(App.Vector(3.5052, 1.4997, 0), App.Vector(3.5052, 8.55, 0)),
    Part.LineSegment(App.Vector(3.5052, 8.55, 0), App.Vector(7.8476, 8.55, 0)),
    Part.LineSegment(App.Vector(7.8476, 8.55, 0), App.Vector(7.8476, 1.4997, 0)),
    Part.LineSegment(App.Vector(7.8476, 1.4997, 0), App.Vector(3.5052, 1.4997, 0)),
], False)
sketch6.addConstraint([
    Sketcher.Constraint("Coincident", 0, 2, 1, 1),
    Sketcher.Constraint("Coincident", 1, 2, 2, 1),
    Sketcher.Constraint("Coincident", 2, 2, 3, 1),
    Sketcher.Constraint("Coincident", 3, 2, 0, 1),
    Sketcher.Constraint("Coincident", 4, 2, 5, 1),
    Sketcher.Constraint("Coincident", 5, 2, 6, 1),
    Sketcher.Constraint("Coincident", 6, 2, 7, 1),
    Sketcher.Constraint("Coincident", 7, 2, 4, 1),
    Sketcher.Constraint("Horizontal", 0),
    Sketcher.Constraint("Vertical", 1),
    Sketcher.Constraint("Horizontal", 2),
    Sketcher.Constraint("Vertical", 3),
    Sketcher.Constraint("Vertical", 4),
    Sketcher.Constraint("Horizontal", 5),
    Sketcher.Constraint("Vertical", 6),
    Sketcher.Constraint("Horizontal", 7),
    Sketcher.Constraint("DistanceX", 0, 2, -1, 1, 21.4),
    Sketcher.Constraint("DistanceY", 1, 1, 1, 2, 4.591),
    Sketcher.Constraint("DistanceY", -1, 1, 4, 2, 8.55),
    Sketcher.Constraint("DistanceX", 0, 2, 0, 1, 3.3897),
    Sketcher.Constraint("DistanceX", 5, 1, 5, 2, 4.3424),
    Sketcher.Constraint("DistanceY", 4, 1, 4, 2, 7.0503),
    Sketcher.Constraint("DistanceX", 2, 2, 5, 2, 25.858),
    Sketcher.Constraint("DistanceY", 6, 2, 2, 2, 0.799),
])
pad6 = doc.addObject("PartDesign::Pad", "Pad005")
body.addObject(pad6)
pad6.Profile = sketch6
pad6.Length = 2
pad6.Reversed = True

sketch7 = doc.addObject("Sketcher::SketchObject", "Sketch006")
body.addObject(sketch7)
sketch7.AttachmentSupport = (doc.XZ_Plane, [""])
sketch7.MapMode = "FlatFace"
sketch7.AttachmentOffset = App.Placement(App.Vector(0, 0, -1.8), App.Rotation())
sketch7.addGeometry([
    Part.LineSegment(App.Vector(-20.8142, -16.2758, 0), App.Vector(-20.8142, -9.2758, 0)),
    Part.LineSegment(App.Vector(-20.8142, -9.2758, 0), App.Vector(-18.3142, -9.2758, 0)),
    Part.LineSegment(App.Vector(-18.3142, -9.2758, 0), App.Vector(-18.3142, -16.2758, 0)),
    Part.LineSegment(App.Vector(-18.3142, -16.2758, 0), App.Vector(-20.8142, -16.2758, 0)),
], False)
sketch7.addConstraint([
    Sketcher.Constraint("Coincident", 0, 2, 1, 1),
    Sketcher.Constraint("Coincident", 1, 2, 2, 1),
    Sketcher.Constraint("Coincident", 2, 2, 3, 1),
    Sketcher.Constraint("Coincident", 3, 2, 0, 1),
    Sketcher.Constraint("Vertical", 0),
    Sketcher.Constraint("Horizontal", 1),
    Sketcher.Constraint("Vertical", 2),
    Sketcher.Constraint("Horizontal", 3),
    Sketcher.Constraint("DistanceY", 0, 1, 0, 2, 7.0),
    Sketcher.Constraint("DistanceX", 1, 1, 1, 2, 2.5),
    Sketcher.Constraint("DistanceX", 0, 2, -1, 1, 20.8142),
    Sketcher.Constraint("DistanceY", 0, 2, -1, 1, 9.2758),
])
pad7 = doc.addObject("PartDesign::Pad", "Pad006")
body.addObject(pad7)
pad7.Profile = sketch7
pad7.Length = 9
pad7.Reversed = True

sketch8 = doc.addObject("Sketcher::SketchObject", "Sketch007")
body.addObject(sketch8)
sketch8.AttachmentSupport = (doc.XZ_Plane, [""])
sketch8.MapMode = "FlatFace"
sketch8.AttachmentOffset = App.Placement(App.Vector(0, 0, -1.8), App.Rotation())
sketch8.addGeometry(Part.Circle(App.Vector(0, 5.0249, 0), App.Vector(0, 0, 1), 3.428), False)
sketch8.addConstraint([
    Sketcher.Constraint("PointOnObject", 0, 3, -2),
    Sketcher.Constraint("Diameter", 0, 6.856),
    Sketcher.Constraint("DistanceY", -1, 1, 0, 3, 5.025),
])
pad8 = doc.addObject("PartDesign::Pad", "Pad007")
body.addObject(pad8)
pad8.Profile = sketch8
pad8.Length = 6
pad8.Reversed = True
doc.recompute()

chamfer = doc.addObject("PartDesign::Chamfer", "Chamfer")
body.addObject(chamfer)
chamfer.Base = (pad8, edges_at(pad8, [(20.732, 11.8, -15.123), (13.232, 11.8, -15.123)]))
chamfer.Size = 2
doc.recompute()

fillet = doc.addObject("PartDesign::Fillet", "Fillet")
body.addObject(fillet)
fillet.Base = (chamfer, edges_at(chamfer, [
    (20.732, 10.3, 0),
    (13.232, 10.3, 0),
    (16.982, 10.3, 8.55),
    (16.982, 10.3, -8.55),
]))
fillet.Radius = 1
doc.recompute()

fillet2 = doc.addObject("PartDesign::Fillet", "Fillet001")
body.addObject(fillet2)
fillet2.Base = (fillet, edges_at(fillet, [(-13.764, 11.8, 19.645), (-13.764, 11.8, 12.845), (-6.714, 11.8, 16.244)]))
fillet2.Radius = 1

sketch9 = doc.addObject("Sketcher::SketchObject", "Sketch008")
body.addObject(sketch9)
sketch9.AttachmentSupport = (doc.XZ_Plane, [""])
sketch9.MapMode = "FlatFace"
sketch9.AttachmentOffset = App.Placement(App.Vector(0, 0, -3.8), App.Rotation())
sketch9.addGeometry([
    Part.Circle(App.Vector(4.673, 2.6409, 0), App.Vector(0, 0, 1), 0.5),
    Part.Circle(App.Vector(6.8599, 2.6409, 0), App.Vector(0, 0, 1), 0.5),
    Part.Circle(App.Vector(4.673, 4.941, 0), App.Vector(0, 0, 1), 0.5),
    Part.Circle(App.Vector(6.8599, 4.941, 0), App.Vector(0, 0, 1), 0.5),
    Part.Circle(App.Vector(4.673, 7.5205, 0), App.Vector(0, 0, 1), 0.5),
    Part.Circle(App.Vector(6.8599, 7.5205, 0), App.Vector(0, 0, 1), 0.5),
], False)
sketch9.addConstraint([
    Sketcher.Constraint("Equal", 0, 1),
    Sketcher.Constraint("Equal", 1, 2),
    Sketcher.Constraint("Equal", 2, 3),
    Sketcher.Constraint("Equal", 3, 4),
    Sketcher.Constraint("Equal", 4, 5),
    Sketcher.Constraint("Horizontal", 0, 3, 1, 3),
    Sketcher.Constraint("Horizontal", 2, 3, 3, 3),
    Sketcher.Constraint("Horizontal", 4, 3, 5, 3),
    Sketcher.Constraint("Vertical", 0, 3, 2, 3),
    Sketcher.Constraint("Vertical", 1, 3, 3, 3),
    Sketcher.Constraint("Vertical", 2, 3, 4, 3),
    Sketcher.Constraint("Vertical", 3, 3, 5, 3),
    Sketcher.Constraint("Diameter", 0, 1.0),
    Sketcher.Constraint("DistanceY", 0, 3, 2, 3, 2.3),
    Sketcher.Constraint("DistanceX", -1, 1, 1, 3, 6.86),
    Sketcher.Constraint("DistanceX", -1, 1, 0, 3, 4.673),
    Sketcher.Constraint("DistanceY", -1, 1, 0, 3, 2.641),
    Sketcher.Constraint("DistanceY", -1, 1, 4, 3, 7.5205),
])
pad9 = doc.addObject("PartDesign::Pad", "Pad008")
body.addObject(pad9)
pad9.Profile = sketch9
pad9.Length = 6
pad9.Reversed = True

sketch10 = doc.addObject("Sketcher::SketchObject", "Sketch009")
body.addObject(sketch10)
sketch10.AttachmentSupport = (doc.XZ_Plane, [""])
sketch10.MapMode = "FlatFace"
sketch10.AttachmentOffset = App.Placement(App.Vector(0, 0, -10.3), App.Rotation())
sketch10.addGeometry([
    Part.LineSegment(App.Vector(15.0945, 6.7178, 0), App.Vector(18.8699, 6.7178, 0)),
    Part.LineSegment(App.Vector(18.8699, 6.7178, 0), App.Vector(18.8699, 2.2873, 0)),
    Part.LineSegment(App.Vector(18.8699, 2.2873, 0), App.Vector(15.0945, 2.2873, 0)),
    Part.LineSegment(App.Vector(15.0945, 2.2873, 0), App.Vector(15.0945, 6.7178, 0)),
], False)
sketch10.addConstraint([
    Sketcher.Constraint("Coincident", 0, 2, 1, 1),
    Sketcher.Constraint("Coincident", 1, 2, 2, 1),
    Sketcher.Constraint("Coincident", 2, 2, 3, 1),
    Sketcher.Constraint("Coincident", 3, 2, 0, 1),
    Sketcher.Constraint("Horizontal", 0),
    Sketcher.Constraint("Vertical", 1),
    Sketcher.Constraint("Horizontal", 2),
    Sketcher.Constraint("Vertical", 3),
    Sketcher.Constraint("DistanceX", -1, 1, 0, 2, 18.87),
    Sketcher.Constraint("DistanceX", 0, 1, 0, 2, 3.7754),
    Sketcher.Constraint("DistanceY", 1, 2, 1, 1, 4.4305),
    Sketcher.Constraint("DistanceY", -1, 1, 0, 2, 6.7178),
])
pad10 = doc.addObject("PartDesign::Pad", "Pad009")
body.addObject(pad10)
pad10.Profile = sketch10
pad10.Length = 3
pad10.Reversed = True

sketch11 = doc.addObject("Sketcher::SketchObject", "Sketch010")
body.addObject(sketch11)
sketch11.AttachmentSupport = (doc.XZ_Plane, [""])
sketch11.MapMode = "FlatFace"
sketch11.AttachmentOffset = App.Placement(App.Vector(0, 0, -10.3), App.Rotation())
sketch11.addGeometry([
    Part.LineSegment(App.Vector(15.0945, 2.2873, 0), App.Vector(18.8699, 2.2873, 0)),
    Part.LineSegment(App.Vector(18.8699, 2.2873, 0), App.Vector(18.8699, -6.7178, 0)),
    Part.LineSegment(App.Vector(18.8699, -6.7178, 0), App.Vector(15.0945, -6.7178, 0)),
    Part.LineSegment(App.Vector(15.0945, -6.7178, 0), App.Vector(15.0945, 2.2873, 0)),
], False)
sketch11.addConstraint([
    Sketcher.Constraint("Coincident", 0, 2, 1, 1),
    Sketcher.Constraint("Coincident", 1, 2, 2, 1),
    Sketcher.Constraint("Coincident", 2, 2, 3, 1),
    Sketcher.Constraint("Coincident", 3, 2, 0, 1),
    Sketcher.Constraint("Horizontal", 0),
    Sketcher.Constraint("Vertical", 1),
    Sketcher.Constraint("Horizontal", 2),
    Sketcher.Constraint("Vertical", 3),
    Sketcher.Constraint("DistanceY", 1, 2, 1, 1, 9.005),
    Sketcher.Constraint("DistanceX", -1, 1, 0, 2, 18.87),
    Sketcher.Constraint("DistanceX", 0, 1, 0, 2, 3.7754),
    Sketcher.Constraint("DistanceY", -1, 1, 0, 2, 2.2873),
])
pocket1 = doc.addObject("PartDesign::Pocket", "Pocket")
body.addObject(pocket1)
pocket1.Profile = sketch11
pocket1.Length = 0.5
pocket1.Reversed = True
doc.recompute()

fillet3 = doc.addObject("PartDesign::Fillet", "Fillet002")
body.addObject(fillet3)
fillet3.Base = (pocket1, edges_at(pocket1, [
    (16.982, 13.3, 6.718),
    (18.87, 13.3, 4.503),
    (16.982, 13.3, 2.287),
    (15.095, 13.3, 4.503),
]))
fillet3.Radius = 0.5

doc.recompute()
